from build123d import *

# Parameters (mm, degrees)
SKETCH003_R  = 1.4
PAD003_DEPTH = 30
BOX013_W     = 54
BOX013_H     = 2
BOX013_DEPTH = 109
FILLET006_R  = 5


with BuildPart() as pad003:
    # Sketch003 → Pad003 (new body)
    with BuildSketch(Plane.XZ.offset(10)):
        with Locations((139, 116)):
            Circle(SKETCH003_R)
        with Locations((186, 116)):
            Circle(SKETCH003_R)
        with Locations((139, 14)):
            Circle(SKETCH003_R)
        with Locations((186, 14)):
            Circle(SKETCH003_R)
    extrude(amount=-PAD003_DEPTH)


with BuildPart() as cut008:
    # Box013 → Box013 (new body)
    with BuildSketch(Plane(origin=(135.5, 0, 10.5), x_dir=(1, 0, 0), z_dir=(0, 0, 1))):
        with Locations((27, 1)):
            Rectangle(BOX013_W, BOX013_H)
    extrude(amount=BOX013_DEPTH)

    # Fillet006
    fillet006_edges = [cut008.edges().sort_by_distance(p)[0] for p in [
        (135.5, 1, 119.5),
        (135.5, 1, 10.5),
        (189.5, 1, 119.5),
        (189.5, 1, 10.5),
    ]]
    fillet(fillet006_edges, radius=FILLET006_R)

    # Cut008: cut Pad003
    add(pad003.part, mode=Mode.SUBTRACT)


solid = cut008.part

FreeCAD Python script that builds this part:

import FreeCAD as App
import Part
import Sketcher


def edges_at(feature, points):
    """Names of the edges that pass closest to the given points."""
    edges = feature.Shape.Edges
    near = lambda p: min(range(len(edges)), key=lambda i: edges[i].distToShape(Part.Vertex(*p))[0])
    return sorted({f"Edge{near(p) + 1}" for p in points})

doc = App.newDocument("Part")
body = doc.addObject("PartDesign::Body", "Body")
body.AllowCompound = True

sketch1 = body.newObject("Sketcher::SketchObject", "Sketch")
sketch1.AttachmentSupport = (doc.getObject("XZ_Plane"), [""])
sketch1.MapMode = "FlatFace"
sketch1.AttachmentOffset = App.Placement(App.Vector(0, 0, 10), App.Rotation())
sketch1.addGeometry(Part.Circle(App.Vector(139, 116, 0), App.Vector(0, 0, 1), 1.4), False)
sketch1.addGeometry(Part.Circle(App.Vector(186, 116, 0), App.Vector(0, 0, 1), 1.4), False)
sketch1.addGeometry(Part.Circle(App.Vector(139, 14, 0), App.Vector(0, 0, 1), 1.4), False)
sketch1.addGeometry(Part.Circle(App.Vector(186, 14, 0), App.Vector(0, 0, 1), 1.4), False)
sketch1.addConstraint(Sketcher.Constraint("Equal", 0, 1))
sketch1.addConstraint(Sketcher.Constraint("Equal", 1, 2))
sketch1.addConstraint(Sketcher.Constraint("Equal", 2, 3))
sketch1.addConstraint(Sketcher.Constraint("Horizontal", 0, 3, 1, 3))
sketch1.addConstraint(Sketcher.Constraint("Horizontal", 2, 3, 3, 3))
sketch1.addConstraint(Sketcher.Constraint("Vertical", 0, 3, 2, 3))
sketch1.addConstraint(Sketcher.Constraint("Vertical", 1, 3, 3, 3))
sketch1.addConstraint(Sketcher.Constraint("Diameter", 0, 2.8))
sketch1.addConstraint(Sketcher.Constraint("DistanceX", -1, 1, 0, 3, 139.0))
sketch1.addConstraint(Sketcher.Constraint("DistanceY", -1, 1, 0, 3, 116.0))
sketch1.addConstraint(Sketcher.Constraint("DistanceX", -1, 1, 1, 3, 186.0))
sketch1.addConstraint(Sketcher.Constraint("DistanceY", -1, 1, 2, 3, 14.0))
pad1 = body.newObject("PartDesign::Pad", "Pad")
pad1.Profile = sketch1
pad1.Length = 30
pad1.Reversed = True
body2 = doc.addObject("PartDesign::Body", "Body001")

sketch2 = body2.newObject("Sketcher::SketchObject", "Sketch001")
sketch2.AttachmentSupport = (doc.getObject("XY_Plane001"), [""])
sketch2.MapMode = "FlatFace"
sketch2.AttachmentOffset = App.Placement(App.Vector(0, 0, 10.5), App.Rotation())
sketch2.addGeometry(Part.LineSegment(App.Vector(135.5, 2, 0), App.Vector(135.5, 0, 0)), False)
sketch2.addGeometry(Part.LineSegment(App.Vector(135.5, 0, 0), App.Vector(189.5, 0, 0)), False)
sketch2.addGeometry(Part.LineSegment(App.Vector(189.5, 0, 0), App.Vector(189.5, 2, 0)), False)
sketch2.addGeometry(Part.LineSegment(App.Vector(189.5, 2, 0), App.Vector(135.5, 2, 0)), False)
sketch2.addConstraint(Sketcher.Constraint("Coincident", 0, 2, 1, 1))
sketch2.addConstraint(Sketcher.Constraint("Coincident", 1, 2, 2, 1))
sketch2.addConstraint(Sketcher.Constraint("Coincident", 2, 2, 3, 1))
sketch2.addConstraint(Sketcher.Constraint("Coincident", 3, 2, 0, 1))
sketch2.addConstraint(Sketcher.Constraint("Vertical", 0))
sketch2.addConstraint(Sketcher.Constraint("Horizontal", 1))
sketch2.addConstraint(Sketcher.Constraint("Vertical", 2))
sketch2.addConstraint(Sketcher.Constraint("Horizontal", 3))
sketch2.addConstraint(Sketcher.Constraint("PointOnObject", 0, 2, -1))
sketch2.addConstraint(Sketcher.Constraint("DistanceX", 1, 1, 1, 2, 54.0))
sketch2.addConstraint(Sketcher.Constraint("DistanceY", 0, 2, 0, 1, 2.0))
sketch2.addConstraint(Sketcher.Constraint("DistanceX", -1, 1, 0, 2, 135.5))
pad2 = body2.newObject("PartDesign::Pad", "Pad001")
pad2.Profile = sketch2
pad2.Length = 109
doc.recompute()

fillet = body2.newObject("PartDesign::Fillet", "Fillet")
fillet.Base = (pad2, edges_at(pad2, [
    (135.5, 1, 119.5),
    (135.5, 1, 10.5),
    (189.5, 1, 119.5),
    (189.5, 1, 10.5),
]))
fillet.Radius = 5
doc.recompute()

boolean = body2.newObject("PartDesign::Boolean", "Boolean")
boolean.Type = "Cut"
boolean.addObjects([body])

doc.recompute()
